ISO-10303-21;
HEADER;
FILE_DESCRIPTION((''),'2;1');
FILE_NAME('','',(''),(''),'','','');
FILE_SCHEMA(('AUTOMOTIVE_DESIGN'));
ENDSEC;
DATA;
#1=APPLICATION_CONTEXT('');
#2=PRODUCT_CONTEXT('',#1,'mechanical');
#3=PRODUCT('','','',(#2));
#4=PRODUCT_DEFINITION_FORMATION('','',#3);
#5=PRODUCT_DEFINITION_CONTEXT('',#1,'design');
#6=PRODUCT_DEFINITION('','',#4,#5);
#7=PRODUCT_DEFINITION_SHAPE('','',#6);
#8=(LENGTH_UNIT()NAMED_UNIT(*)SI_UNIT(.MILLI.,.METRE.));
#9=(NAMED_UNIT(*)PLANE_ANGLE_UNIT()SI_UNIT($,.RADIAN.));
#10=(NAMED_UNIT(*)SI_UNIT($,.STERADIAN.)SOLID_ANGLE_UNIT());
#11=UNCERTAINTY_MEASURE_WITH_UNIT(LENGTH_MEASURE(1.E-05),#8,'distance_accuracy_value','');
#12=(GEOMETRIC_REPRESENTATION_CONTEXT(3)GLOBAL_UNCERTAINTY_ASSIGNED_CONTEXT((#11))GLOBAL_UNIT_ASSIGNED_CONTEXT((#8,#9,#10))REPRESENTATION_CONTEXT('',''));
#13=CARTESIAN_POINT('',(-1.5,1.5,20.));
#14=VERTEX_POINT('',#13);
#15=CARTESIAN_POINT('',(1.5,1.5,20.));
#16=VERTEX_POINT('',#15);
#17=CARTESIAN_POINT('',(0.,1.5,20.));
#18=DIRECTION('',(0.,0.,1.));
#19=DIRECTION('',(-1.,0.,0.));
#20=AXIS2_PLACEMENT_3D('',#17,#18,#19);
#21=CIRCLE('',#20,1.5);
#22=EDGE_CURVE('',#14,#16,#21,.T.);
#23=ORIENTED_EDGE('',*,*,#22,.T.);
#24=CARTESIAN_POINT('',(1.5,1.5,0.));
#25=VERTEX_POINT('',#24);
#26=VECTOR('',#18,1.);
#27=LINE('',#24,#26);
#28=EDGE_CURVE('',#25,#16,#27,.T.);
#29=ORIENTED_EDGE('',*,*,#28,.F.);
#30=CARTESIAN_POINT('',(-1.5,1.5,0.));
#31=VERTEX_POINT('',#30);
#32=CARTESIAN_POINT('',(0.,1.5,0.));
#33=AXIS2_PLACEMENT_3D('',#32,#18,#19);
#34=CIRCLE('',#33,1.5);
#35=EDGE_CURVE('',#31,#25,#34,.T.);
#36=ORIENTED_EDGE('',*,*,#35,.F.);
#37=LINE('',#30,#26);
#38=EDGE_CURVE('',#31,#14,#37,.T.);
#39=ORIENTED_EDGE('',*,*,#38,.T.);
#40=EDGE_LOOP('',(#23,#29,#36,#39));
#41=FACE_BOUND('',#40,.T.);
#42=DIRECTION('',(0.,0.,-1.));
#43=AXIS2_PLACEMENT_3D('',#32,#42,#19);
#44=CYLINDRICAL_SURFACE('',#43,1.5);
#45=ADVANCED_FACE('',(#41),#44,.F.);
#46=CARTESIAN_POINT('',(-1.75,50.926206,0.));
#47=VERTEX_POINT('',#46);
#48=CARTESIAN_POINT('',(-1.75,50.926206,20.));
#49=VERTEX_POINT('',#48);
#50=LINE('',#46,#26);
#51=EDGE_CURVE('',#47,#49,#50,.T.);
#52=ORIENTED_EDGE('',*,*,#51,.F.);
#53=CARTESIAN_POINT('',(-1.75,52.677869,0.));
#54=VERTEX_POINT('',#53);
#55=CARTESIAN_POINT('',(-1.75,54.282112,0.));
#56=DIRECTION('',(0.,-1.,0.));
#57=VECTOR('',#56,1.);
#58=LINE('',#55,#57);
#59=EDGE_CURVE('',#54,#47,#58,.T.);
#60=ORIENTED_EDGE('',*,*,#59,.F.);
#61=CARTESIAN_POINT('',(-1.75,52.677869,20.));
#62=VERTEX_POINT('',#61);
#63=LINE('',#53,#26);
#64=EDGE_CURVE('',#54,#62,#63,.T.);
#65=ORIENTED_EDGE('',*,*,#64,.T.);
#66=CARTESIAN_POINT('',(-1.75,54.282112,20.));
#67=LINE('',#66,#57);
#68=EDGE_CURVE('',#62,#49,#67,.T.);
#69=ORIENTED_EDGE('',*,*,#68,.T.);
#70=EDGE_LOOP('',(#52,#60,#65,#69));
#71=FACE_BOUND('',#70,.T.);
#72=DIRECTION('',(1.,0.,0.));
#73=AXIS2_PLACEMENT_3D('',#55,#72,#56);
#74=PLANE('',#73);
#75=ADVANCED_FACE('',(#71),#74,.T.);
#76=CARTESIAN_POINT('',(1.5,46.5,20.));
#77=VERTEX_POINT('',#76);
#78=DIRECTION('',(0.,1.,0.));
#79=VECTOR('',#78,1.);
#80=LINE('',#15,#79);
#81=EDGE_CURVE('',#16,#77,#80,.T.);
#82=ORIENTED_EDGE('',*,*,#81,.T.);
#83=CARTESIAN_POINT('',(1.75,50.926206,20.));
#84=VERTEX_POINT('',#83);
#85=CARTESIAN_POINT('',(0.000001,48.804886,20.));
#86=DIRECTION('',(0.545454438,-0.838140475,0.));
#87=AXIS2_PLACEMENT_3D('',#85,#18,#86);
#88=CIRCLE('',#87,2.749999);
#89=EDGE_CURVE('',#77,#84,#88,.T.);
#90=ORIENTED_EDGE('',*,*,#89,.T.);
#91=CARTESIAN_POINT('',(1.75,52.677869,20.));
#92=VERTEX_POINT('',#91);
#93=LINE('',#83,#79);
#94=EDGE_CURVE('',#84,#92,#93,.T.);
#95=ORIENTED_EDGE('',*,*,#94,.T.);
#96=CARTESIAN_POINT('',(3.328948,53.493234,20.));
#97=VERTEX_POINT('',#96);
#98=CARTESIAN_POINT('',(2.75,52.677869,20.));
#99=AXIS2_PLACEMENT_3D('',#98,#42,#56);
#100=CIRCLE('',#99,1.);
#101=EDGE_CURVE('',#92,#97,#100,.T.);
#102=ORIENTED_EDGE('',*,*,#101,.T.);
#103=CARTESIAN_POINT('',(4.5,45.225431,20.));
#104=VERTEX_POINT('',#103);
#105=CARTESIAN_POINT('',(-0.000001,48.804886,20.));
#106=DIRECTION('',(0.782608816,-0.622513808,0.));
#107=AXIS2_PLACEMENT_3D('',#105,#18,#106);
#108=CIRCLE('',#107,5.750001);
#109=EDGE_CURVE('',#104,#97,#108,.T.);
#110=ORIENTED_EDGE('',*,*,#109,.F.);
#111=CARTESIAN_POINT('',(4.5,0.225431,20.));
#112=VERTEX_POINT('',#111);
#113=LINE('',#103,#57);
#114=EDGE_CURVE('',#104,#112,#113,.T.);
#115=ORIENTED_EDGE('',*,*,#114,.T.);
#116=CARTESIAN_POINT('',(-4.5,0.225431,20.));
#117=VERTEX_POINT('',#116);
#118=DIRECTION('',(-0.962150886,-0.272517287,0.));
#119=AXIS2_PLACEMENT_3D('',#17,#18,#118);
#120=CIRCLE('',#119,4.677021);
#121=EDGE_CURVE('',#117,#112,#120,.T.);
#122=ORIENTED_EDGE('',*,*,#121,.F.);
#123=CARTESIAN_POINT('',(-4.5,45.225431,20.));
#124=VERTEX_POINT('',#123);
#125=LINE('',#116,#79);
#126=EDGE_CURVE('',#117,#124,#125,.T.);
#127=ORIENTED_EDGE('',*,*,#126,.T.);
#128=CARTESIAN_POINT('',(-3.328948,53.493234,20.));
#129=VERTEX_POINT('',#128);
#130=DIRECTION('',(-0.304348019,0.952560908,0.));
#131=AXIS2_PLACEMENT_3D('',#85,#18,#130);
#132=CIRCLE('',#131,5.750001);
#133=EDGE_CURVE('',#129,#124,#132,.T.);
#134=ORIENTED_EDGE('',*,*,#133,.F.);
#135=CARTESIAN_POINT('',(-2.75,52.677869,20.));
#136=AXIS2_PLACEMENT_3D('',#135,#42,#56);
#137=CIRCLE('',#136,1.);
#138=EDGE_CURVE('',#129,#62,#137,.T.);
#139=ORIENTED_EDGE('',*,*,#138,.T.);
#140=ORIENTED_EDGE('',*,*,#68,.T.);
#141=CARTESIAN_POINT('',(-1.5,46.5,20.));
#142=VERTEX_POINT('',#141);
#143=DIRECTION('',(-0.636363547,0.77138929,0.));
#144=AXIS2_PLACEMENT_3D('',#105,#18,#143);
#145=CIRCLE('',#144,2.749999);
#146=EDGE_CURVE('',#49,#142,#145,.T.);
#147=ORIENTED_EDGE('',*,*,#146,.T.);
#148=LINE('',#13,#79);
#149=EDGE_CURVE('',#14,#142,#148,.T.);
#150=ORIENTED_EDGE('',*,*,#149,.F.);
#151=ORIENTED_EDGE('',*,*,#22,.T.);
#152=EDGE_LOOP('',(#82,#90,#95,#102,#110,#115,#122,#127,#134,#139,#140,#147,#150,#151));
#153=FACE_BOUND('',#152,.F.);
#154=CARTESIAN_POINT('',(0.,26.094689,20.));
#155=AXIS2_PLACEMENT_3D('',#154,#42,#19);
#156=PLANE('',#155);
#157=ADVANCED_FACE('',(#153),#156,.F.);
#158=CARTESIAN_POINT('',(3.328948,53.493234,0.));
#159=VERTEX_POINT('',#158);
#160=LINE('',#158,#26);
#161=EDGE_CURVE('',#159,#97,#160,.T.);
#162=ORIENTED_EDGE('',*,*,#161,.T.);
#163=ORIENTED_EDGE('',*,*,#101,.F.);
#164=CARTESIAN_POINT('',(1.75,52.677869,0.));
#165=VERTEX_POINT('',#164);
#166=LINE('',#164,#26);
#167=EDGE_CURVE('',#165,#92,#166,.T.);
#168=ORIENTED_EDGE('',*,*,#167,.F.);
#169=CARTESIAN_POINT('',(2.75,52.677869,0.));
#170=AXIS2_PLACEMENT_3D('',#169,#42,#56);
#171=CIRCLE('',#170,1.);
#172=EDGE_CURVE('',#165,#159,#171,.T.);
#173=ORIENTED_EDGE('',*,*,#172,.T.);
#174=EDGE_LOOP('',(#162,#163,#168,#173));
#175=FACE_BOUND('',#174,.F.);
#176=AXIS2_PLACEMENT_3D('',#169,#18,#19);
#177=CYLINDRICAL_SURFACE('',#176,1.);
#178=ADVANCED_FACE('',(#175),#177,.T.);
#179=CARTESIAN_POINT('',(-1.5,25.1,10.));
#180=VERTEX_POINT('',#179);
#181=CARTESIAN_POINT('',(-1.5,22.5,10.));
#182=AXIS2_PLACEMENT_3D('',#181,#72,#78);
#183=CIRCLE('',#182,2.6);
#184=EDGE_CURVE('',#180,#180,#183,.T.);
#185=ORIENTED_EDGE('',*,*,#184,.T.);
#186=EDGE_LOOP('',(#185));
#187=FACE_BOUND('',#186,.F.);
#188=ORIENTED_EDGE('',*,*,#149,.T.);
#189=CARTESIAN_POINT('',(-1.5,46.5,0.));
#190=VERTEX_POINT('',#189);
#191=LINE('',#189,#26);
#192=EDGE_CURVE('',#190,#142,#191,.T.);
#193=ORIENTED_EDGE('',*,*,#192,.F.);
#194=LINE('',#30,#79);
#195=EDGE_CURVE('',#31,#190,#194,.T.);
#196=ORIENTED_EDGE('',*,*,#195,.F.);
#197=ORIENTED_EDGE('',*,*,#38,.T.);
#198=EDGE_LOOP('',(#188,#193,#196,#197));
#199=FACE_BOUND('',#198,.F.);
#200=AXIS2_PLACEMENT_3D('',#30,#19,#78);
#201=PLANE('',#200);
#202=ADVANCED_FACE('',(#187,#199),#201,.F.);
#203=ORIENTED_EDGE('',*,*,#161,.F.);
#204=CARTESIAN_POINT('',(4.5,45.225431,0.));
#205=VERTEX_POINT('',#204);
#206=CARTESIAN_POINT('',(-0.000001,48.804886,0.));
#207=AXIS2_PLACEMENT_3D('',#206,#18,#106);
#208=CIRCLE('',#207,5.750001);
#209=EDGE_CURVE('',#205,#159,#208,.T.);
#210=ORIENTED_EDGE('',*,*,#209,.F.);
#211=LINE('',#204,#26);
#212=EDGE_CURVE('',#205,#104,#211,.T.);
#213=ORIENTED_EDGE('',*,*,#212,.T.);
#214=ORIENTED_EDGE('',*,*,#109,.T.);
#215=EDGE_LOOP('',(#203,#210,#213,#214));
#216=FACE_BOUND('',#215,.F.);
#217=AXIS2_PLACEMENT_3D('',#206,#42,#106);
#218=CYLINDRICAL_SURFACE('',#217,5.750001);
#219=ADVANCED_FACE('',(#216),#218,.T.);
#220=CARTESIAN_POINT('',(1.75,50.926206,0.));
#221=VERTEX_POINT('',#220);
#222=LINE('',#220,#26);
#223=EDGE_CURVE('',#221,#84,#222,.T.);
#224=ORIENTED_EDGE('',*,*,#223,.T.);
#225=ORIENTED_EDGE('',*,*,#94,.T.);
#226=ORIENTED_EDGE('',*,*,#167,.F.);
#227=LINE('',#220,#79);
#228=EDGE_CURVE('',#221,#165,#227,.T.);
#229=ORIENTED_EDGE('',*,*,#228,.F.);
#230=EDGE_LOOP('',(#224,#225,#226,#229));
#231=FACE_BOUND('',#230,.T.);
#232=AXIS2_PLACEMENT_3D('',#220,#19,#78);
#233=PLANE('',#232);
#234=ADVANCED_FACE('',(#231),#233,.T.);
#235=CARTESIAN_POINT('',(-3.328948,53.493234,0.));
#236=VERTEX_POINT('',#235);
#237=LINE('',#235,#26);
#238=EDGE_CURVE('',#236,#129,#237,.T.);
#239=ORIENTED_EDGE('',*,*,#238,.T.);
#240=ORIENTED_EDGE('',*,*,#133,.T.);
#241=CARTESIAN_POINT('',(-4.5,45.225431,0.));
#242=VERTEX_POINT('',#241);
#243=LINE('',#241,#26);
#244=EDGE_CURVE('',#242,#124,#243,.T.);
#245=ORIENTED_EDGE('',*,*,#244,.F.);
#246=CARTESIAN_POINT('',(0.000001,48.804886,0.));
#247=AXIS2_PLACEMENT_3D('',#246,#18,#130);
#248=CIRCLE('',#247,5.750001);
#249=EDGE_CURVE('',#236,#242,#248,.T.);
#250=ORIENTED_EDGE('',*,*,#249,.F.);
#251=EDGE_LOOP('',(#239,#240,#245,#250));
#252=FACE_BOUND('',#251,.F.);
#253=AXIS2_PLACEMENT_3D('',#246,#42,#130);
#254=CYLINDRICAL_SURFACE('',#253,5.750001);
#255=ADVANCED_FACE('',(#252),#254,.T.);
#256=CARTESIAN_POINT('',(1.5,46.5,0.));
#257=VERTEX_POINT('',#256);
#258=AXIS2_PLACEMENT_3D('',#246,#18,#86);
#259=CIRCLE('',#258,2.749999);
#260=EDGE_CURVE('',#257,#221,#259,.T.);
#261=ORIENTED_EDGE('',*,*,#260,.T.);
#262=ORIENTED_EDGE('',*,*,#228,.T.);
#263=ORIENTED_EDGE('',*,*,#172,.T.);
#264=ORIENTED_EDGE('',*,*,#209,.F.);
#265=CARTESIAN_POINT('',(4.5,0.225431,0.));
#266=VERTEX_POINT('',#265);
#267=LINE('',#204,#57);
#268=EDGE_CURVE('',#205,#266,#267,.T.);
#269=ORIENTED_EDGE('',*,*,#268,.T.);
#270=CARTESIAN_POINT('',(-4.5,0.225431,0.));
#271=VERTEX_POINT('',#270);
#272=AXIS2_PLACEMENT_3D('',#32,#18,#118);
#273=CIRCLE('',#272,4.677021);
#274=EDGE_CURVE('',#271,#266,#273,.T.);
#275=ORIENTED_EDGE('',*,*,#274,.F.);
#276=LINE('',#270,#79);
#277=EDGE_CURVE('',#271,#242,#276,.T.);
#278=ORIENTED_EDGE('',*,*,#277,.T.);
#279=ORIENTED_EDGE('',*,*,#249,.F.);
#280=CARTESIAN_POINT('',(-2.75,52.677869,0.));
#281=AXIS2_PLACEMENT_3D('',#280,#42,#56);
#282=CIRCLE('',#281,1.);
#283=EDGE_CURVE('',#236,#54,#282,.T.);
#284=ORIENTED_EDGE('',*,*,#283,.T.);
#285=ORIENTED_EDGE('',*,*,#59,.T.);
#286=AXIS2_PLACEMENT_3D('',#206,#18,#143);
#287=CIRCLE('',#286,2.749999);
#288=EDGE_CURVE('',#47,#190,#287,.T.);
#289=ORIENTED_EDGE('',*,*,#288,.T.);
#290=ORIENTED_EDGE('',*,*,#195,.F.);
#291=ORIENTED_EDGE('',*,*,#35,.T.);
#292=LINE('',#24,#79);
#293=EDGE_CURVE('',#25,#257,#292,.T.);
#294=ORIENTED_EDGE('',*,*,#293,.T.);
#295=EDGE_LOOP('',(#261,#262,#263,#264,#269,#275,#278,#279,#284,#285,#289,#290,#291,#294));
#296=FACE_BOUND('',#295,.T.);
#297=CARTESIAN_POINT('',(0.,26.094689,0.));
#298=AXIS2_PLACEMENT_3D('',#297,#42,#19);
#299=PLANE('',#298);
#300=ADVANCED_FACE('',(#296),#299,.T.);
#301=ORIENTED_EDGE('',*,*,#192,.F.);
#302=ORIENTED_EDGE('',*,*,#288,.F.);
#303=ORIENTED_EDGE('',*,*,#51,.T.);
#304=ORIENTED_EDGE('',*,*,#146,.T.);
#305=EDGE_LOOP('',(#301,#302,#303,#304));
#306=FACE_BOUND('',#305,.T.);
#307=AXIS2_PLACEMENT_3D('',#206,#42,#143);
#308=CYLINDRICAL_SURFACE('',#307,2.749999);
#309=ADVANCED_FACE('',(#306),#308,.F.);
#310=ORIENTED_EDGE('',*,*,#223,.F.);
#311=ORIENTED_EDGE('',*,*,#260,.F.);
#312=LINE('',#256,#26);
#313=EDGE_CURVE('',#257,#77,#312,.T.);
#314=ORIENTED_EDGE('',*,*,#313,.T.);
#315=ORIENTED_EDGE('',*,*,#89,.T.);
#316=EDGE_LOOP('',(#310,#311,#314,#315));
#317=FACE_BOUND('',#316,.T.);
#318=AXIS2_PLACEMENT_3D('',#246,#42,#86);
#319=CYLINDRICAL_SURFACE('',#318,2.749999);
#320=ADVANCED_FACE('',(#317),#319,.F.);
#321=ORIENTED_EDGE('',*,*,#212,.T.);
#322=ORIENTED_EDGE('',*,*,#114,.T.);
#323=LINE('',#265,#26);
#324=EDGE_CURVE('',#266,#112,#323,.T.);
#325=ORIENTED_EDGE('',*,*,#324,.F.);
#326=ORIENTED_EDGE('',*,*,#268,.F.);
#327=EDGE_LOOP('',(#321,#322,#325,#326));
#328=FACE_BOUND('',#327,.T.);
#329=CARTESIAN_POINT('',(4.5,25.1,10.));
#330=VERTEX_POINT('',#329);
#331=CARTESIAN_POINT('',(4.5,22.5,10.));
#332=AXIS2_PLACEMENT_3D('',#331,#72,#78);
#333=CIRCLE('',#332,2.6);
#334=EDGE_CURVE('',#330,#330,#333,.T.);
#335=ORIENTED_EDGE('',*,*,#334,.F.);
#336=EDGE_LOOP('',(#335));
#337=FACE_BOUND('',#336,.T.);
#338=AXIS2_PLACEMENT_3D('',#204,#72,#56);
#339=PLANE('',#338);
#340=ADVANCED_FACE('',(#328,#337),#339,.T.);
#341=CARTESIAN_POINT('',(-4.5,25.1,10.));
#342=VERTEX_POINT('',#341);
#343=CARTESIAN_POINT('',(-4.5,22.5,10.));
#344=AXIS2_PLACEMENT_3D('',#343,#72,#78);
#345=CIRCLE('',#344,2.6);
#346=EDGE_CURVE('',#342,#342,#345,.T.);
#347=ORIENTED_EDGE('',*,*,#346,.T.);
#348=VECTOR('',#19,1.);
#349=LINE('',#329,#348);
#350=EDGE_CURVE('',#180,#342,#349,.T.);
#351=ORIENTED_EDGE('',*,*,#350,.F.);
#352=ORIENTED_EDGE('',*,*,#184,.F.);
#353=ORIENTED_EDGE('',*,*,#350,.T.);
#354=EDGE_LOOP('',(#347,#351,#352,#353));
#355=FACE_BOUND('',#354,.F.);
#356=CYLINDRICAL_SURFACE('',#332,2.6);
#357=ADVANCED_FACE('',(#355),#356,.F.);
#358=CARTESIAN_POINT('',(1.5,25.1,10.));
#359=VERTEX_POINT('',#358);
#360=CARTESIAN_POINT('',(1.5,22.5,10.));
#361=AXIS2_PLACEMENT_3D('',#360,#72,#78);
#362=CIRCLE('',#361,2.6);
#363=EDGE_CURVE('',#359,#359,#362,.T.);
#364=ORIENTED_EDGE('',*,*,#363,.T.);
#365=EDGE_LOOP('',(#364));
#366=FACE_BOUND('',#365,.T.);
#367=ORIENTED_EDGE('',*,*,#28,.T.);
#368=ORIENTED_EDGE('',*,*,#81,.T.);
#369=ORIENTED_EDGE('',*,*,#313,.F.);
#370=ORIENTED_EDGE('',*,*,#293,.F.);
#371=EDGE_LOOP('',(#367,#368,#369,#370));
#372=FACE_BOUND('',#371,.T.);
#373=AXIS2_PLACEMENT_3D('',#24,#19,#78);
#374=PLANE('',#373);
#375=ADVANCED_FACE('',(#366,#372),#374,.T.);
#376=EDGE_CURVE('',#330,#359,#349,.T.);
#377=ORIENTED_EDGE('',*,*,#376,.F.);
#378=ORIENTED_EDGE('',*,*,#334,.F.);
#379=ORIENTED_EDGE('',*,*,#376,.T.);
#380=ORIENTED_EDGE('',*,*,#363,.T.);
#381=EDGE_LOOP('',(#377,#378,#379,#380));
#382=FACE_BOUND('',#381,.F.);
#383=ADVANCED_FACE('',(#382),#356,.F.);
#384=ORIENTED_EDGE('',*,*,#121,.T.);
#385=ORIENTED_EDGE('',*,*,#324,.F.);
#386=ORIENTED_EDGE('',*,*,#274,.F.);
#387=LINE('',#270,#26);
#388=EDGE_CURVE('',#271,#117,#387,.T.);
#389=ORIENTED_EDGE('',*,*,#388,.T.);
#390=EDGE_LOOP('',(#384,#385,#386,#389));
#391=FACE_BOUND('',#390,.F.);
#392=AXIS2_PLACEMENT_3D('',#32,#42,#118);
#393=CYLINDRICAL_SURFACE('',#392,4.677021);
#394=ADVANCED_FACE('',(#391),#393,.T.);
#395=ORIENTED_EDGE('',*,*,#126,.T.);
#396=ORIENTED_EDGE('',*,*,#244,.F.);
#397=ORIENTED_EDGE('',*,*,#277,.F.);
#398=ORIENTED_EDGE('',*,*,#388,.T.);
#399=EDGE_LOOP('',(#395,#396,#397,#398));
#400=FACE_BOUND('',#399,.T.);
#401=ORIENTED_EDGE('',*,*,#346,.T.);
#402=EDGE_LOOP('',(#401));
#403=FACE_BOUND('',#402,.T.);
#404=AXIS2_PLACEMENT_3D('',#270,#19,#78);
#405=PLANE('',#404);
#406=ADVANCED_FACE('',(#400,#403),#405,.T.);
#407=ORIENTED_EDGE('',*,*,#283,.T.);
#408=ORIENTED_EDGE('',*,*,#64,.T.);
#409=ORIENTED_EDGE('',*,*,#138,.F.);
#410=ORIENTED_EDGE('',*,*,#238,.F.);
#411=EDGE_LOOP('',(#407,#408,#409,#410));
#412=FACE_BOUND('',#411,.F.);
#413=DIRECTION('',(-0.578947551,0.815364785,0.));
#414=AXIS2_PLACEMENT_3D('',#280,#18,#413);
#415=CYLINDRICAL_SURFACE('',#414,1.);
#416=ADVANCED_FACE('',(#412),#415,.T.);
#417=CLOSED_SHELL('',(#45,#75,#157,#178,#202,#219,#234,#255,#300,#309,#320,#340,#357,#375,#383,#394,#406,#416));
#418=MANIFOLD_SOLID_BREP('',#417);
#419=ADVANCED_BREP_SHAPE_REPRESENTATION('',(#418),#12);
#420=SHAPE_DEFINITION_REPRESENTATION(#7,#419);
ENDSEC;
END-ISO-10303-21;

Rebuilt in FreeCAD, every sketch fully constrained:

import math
import FreeCAD as App
import Part
import Sketcher
from FreeCAD import Vector


def edges_at(feature, points):
    """Names of the edges that pass closest to the given points."""
    edges = feature.Shape.Edges
    near = lambda p: min(range(len(edges)), key=lambda i: edges[i].distToShape(Part.Vertex(*p))[0])
    return sorted({f"Edge{near(p) + 1}" for p in points})

doc = App.newDocument("Part")
body = doc.addObject("PartDesign::Body", "Body")

sketch1 = body.newObject("Sketcher::SketchObject", "Sketch")
sketch1.AttachmentSupport = (doc.getObject("XY_Plane"), [""])
sketch1.MapMode = "FlatFace"
sketch1.addGeometry([
    Part.ArcOfCircle(Part.Circle(Vector(0, 1.5, 0), Vector(0, 0, 1), 1.5), math.radians(180), math.radians(360)),
    Part.LineSegment(Vector(-1.5, 1.5, 0), Vector(-1.5, 46.5, 0)),
    Part.ArcOfCircle(Part.Circle(Vector(0, 48.8, 0), Vector(0, 0, 1), 2.7), math.radians(130), math.radians(237)),
    Part.LineSegment(Vector(-1.8, 50.9, 0), Vector(-1.8, 54.3, 0)),
    Part.ArcOfCircle(Part.Circle(Vector(0, 48.8, 0), Vector(0, 0, 1), 5.8), math.radians(108), math.radians(218)),
    Part.LineSegment(Vector(-4.5, 45.2, 0), Vector(-4.5, 0.2, 0)),
    Part.ArcOfCircle(Part.Circle(Vector(0, 1.5, 0), Vector(0, 0, 1), 4.7), math.radians(-164), math.radians(-16)),
    Part.LineSegment(Vector(4.5, 0.2, 0), Vector(4.5, 45.2, 0)),
    Part.ArcOfCircle(Part.Circle(Vector(0, 48.8, 0), Vector(0, 0, 1), 5.8), math.radians(-38), math.radians(72)),
    Part.LineSegment(Vector(1.8, 54.3, 0), Vector(1.8, 50.9, 0)),
    Part.ArcOfCircle(Part.Circle(Vector(0, 48.8, 0), Vector(0, 0, 1), 2.7), math.radians(-57), math.radians(50)),
    Part.LineSegment(Vector(1.5, 46.5, 0), Vector(1.5, 1.5, 0)),
], False)
sketch1.addConstraint([
    Sketcher.Constraint("Tangent", 0, 1, 1, 1),
    Sketcher.Constraint("Coincident", 1, 2, 2, 2),
    Sketcher.Constraint("Coincident", 2, 1, 3, 1),
    Sketcher.Constraint("Coincident", 3, 2, 4, 1),
    Sketcher.Constraint("Coincident", 4, 2, 5, 1),
    Sketcher.Constraint("Coincident", 5, 2, 6, 1),
    Sketcher.Constraint("Coincident", 6, 2, 7, 1),
    Sketcher.Constraint("Coincident", 7, 2, 8, 1),
    Sketcher.Constraint("Coincident", 8, 2, 9, 1),
    Sketcher.Constraint("Coincident", 9, 2, 10, 2),
    Sketcher.Constraint("Coincident", 10, 1, 11, 1),
    Sketcher.Constraint("Tangent", 11, 2, 0, 2),
    Sketcher.Constraint("Vertical", 1),
    Sketcher.Constraint("Vertical", 3),
    Sketcher.Constraint("Vertical", 5),
    Sketcher.Constraint("Vertical", 7),
    Sketcher.Constraint("Vertical", 9),
    Sketcher.Constraint("Vertical", 11),
    Sketcher.Constraint("Coincident", 4, 3, 2, 3),
    Sketcher.Constraint("Coincident", 6, 3, 0, 3),
    Sketcher.Constraint("Coincident", 8, 3, 2, 3),
    Sketcher.Constraint("Coincident", 10, 3, 2, 3),
    Sketcher.Constraint("Equal", 4, 8),
    Sketcher.Constraint("Equal", 2, 10),
    Sketcher.Constraint("Symmetric", 5, 2, 6, 2, -2),
    Sketcher.Constraint("Symmetric", 3, 2, 8, 2, -2),
    Sketcher.Constraint("Equal", 1, 5),
    Sketcher.Constraint("Radius", 0, 1.5),
    Sketcher.Constraint("DistanceY", 1, 1, 1, 2, 45.0),
    Sketcher.Constraint("Radius", 2, 2.749999),
    Sketcher.Constraint("Radius", 4, 5.750001),
    Sketcher.Constraint("DistanceX", 4, 2, 1, 2, 3.0),
    Sketcher.Constraint("DistanceY", -1, 1, 0, 3, 1.5),
    Sketcher.Constraint("DistanceX", 3, 2, 8, 2, 3.5),
])
pad1 = body.newObject("PartDesign::Pad", "Pad")
pad1.Profile = sketch1
pad1.Length = 20

sketch2 = body.newObject("Sketcher::SketchObject", "Sketch001")
sketch2.AttachmentSupport = (doc.getObject("YZ_Plane"), [""])
sketch2.MapMode = "FlatFace"
sketch2.AttachmentOffset = App.Placement(Vector(0, 0, 4.5), App.Rotation())
sketch2.addGeometry(Part.Circle(Vector(22.5, 10, 0), Vector(0, 0, 1), 2.6), False)
sketch2.addConstraint([
    Sketcher.Constraint("Diameter", 0, 5.2),
    Sketcher.Constraint("DistanceY", -1, 1, 0, 3, 10.0),
    Sketcher.Constraint("DistanceX", -1, 1, 0, 3, 22.5),
])
pocket1 = body.newObject("PartDesign::Pocket", "Pocket")
pocket1.Profile = sketch2
pocket1.Type = "ThroughAll"
doc.recompute()

fillet = body.newObject("PartDesign::Fillet", "Fillet")
fillet.Base = (pocket1, edges_at(pocket1, [(-1.75, 54.282, 10), (1.75, 54.282, 10)]))
fillet.Radius = 1

doc.recompute()
